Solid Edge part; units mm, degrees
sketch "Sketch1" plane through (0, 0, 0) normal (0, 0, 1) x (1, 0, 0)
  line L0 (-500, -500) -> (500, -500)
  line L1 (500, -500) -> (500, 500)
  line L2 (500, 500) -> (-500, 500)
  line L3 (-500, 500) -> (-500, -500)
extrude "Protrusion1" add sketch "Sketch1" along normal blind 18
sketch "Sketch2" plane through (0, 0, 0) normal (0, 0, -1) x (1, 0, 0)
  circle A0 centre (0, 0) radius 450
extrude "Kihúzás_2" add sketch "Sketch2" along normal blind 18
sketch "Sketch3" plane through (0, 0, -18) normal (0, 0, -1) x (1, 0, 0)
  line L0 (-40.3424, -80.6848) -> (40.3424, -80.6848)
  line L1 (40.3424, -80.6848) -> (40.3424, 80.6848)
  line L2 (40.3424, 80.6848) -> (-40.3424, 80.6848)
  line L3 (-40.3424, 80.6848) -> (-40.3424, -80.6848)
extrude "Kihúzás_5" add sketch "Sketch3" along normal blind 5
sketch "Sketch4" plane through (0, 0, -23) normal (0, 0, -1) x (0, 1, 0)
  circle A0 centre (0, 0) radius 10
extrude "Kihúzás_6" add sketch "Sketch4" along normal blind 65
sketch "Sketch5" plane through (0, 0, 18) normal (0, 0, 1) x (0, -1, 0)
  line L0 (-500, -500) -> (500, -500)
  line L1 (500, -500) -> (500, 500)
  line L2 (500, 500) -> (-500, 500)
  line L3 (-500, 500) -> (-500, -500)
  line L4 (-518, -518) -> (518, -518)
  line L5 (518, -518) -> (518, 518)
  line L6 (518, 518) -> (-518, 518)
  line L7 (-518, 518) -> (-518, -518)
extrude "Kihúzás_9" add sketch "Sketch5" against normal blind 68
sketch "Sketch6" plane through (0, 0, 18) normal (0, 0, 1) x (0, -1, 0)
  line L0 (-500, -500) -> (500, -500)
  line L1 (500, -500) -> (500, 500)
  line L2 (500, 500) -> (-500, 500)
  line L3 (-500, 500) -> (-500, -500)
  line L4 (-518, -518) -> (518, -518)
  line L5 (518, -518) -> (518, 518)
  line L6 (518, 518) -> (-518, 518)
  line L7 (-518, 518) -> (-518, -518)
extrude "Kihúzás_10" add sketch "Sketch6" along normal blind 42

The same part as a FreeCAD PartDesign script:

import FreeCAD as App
import Part
import Sketcher


def add_polygon(sketch, points):
    """Adds a closed chain of lines whose ends are joined by coincident constraints."""
    first, n = sketch.GeometryCount, len(points)
    for a, b in zip(points, points[1:] + points[:1]):
        sketch.addGeometry(Part.LineSegment(App.Vector(*a, 0), App.Vector(*b, 0)), False)
    for i in range(n):
        sketch.addConstraint(Sketcher.Constraint("Coincident", first + i, 2, first + (i + 1) % n, 1))

doc = App.newDocument("Part")
params = doc.addObject("Spreadsheet::Sheet", "Params")
for row, (alias, value) in enumerate([
    ("sketch1_width", "1000 mm"),
    ("pad1_length", "18 mm"),
    ("sketch2_diameter", "900 mm"),
    ("pad2_length", "18 mm"),
    ("pad3_length", "5 mm"),
    ("sketch4_diameter", "20 mm"),
    ("pad4_length", "65 mm"),
    ("sketch5_width", "1036 mm"),
    ("sketch5_width2", "1000 mm"),
    ("pad5_length", "68 mm"),
    ("sketch6_width", "1036 mm"),
    ("sketch6_width2", "1000 mm"),
    ("pad6_length", "42 mm"),
], start=1):
    params.set(f"A{row}", alias)
    params.set(f"B{row}", "=" + value)
    params.setAlias(f"B{row}", alias)

body = doc.addObject("PartDesign::Body", "Body")

sketch1 = doc.addObject("Sketcher::SketchObject", "Sketch")
body.addObject(sketch1)
sketch1.AttachmentSupport = (doc.XY_Plane, [""])
sketch1.MapMode = "FlatFace"
add_polygon(sketch1, [(-500, 500), (-500, -500), (500, -500), (500, 500)])
sketch1.addConstraint(Sketcher.Constraint("Vertical", 0))
sketch1.addConstraint(Sketcher.Constraint("Horizontal", 1))
sketch1.addConstraint(Sketcher.Constraint("Vertical", 2))
sketch1.addConstraint(Sketcher.Constraint("Horizontal", 3))
sketch1.addConstraint(Sketcher.Constraint("Symmetric", 0, 2, 2, 2, -1, 1))
sketch1.addConstraint(Sketcher.Constraint("Equal", 3, 0))
sketch1.addConstraint(Sketcher.Constraint("DistanceX", 1, 1, 1, 2, 1000.0))
sketch1.setExpression("Constraints[10]", "Params.sketch1_width")
pad1 = doc.addObject("PartDesign::Pad", "Pad")
body.addObject(pad1)
pad1.Profile = sketch1
pad1.setExpression("Length", "Params.pad1_length")

sketch2 = doc.addObject("Sketcher::SketchObject", "Sketch001")
body.addObject(sketch2)
sketch2.AttachmentSupport = (doc.XY_Plane, [""])
sketch2.MapMode = "FlatFace"
sketch2.addGeometry(Part.Circle(App.Vector(0, 0, 0), App.Vector(0, 0, 1), 450), False)
sketch2.addConstraint(Sketcher.Constraint("Coincident", 0, 3, -1, 1))
sketch2.addConstraint(Sketcher.Constraint("Diameter", 0, 900.0))
sketch2.setExpression("Constraints[1]", "Params.sketch2_diameter")
pad2 = doc.addObject("PartDesign::Pad", "Pad001")
body.addObject(pad2)
pad2.Profile = sketch2
pad2.setExpression("Length", "Params.pad2_length")
pad2.Reversed = True

sketch3 = doc.addObject("Sketcher::SketchObject", "Sketch002")
body.addObject(sketch3)
sketch3.AttachmentSupport = (doc.XY_Plane, [""])
sketch3.MapMode = "FlatFace"
sketch3.AttachmentOffset = App.Placement(App.Vector(0, 0, -18), App.Rotation())
add_polygon(sketch3, [(-40, -81), (-40, 81), (40, 81), (40, -81)])
sketch3.addConstraint(Sketcher.Constraint("Vertical", 0))
sketch3.addConstraint(Sketcher.Constraint("Horizontal", 1))
sketch3.addConstraint(Sketcher.Constraint("Vertical", 2))
sketch3.addConstraint(Sketcher.Constraint("Horizontal", 3))
sketch3.addConstraint(Sketcher.Constraint("Symmetric", 0, 2, 2, 2, -1, 1))
sketch3.addConstraint(Sketcher.Constraint("DistanceX", 1, 1, 1, 2, 80.6848))
sketch3.addConstraint(Sketcher.Constraint("DistanceY", 0, 1, 0, 2, 161.3696))
pad3 = doc.addObject("PartDesign::Pad", "Pad002")
body.addObject(pad3)
pad3.Profile = sketch3
pad3.setExpression("Length", "Params.pad3_length")
pad3.Reversed = True

sketch4 = doc.addObject("Sketcher::SketchObject", "Sketch003")
body.addObject(sketch4)
sketch4.AttachmentSupport = (doc.XY_Plane, [""])
sketch4.MapMode = "FlatFace"
sketch4.AttachmentOffset = App.Placement(App.Vector(0, 0, -23), App.Rotation())
sketch4.addGeometry(Part.Circle(App.Vector(0, 0, 0), App.Vector(0, 0, 1), 10), False)
sketch4.addConstraint(Sketcher.Constraint("Coincident", 0, 3, -1, 1))
sketch4.addConstraint(Sketcher.Constraint("Diameter", 0, 20.0))
sketch4.setExpression("Constraints[1]", "Params.sketch4_diameter")
pad4 = doc.addObject("PartDesign::Pad", "Pad003")
body.addObject(pad4)
pad4.Profile = sketch4
pad4.setExpression("Length", "Params.pad4_length")
pad4.Reversed = True

sketch5 = doc.addObject("Sketcher::SketchObject", "Sketch004")
body.addObject(sketch5)
sketch5.AttachmentSupport = (doc.XY_Plane, [""])
sketch5.MapMode = "FlatFace"
sketch5.AttachmentOffset = App.Placement(App.Vector(0, 0, 18), App.Rotation())
add_polygon(sketch5, [(518, 518), (-518, 518), (-518, -518), (518, -518)])
add_polygon(sketch5, [(-500, -500), (-500, 500), (500, 500), (500, -500)])
sketch5.addConstraint(Sketcher.Constraint("Horizontal", 0))
sketch5.addConstraint(Sketcher.Constraint("Vertical", 1))
sketch5.addConstraint(Sketcher.Constraint("Horizontal", 2))
sketch5.addConstraint(Sketcher.Constraint("Vertical", 3))
sketch5.addConstraint(Sketcher.Constraint("Vertical", 4))
sketch5.addConstraint(Sketcher.Constraint("Horizontal", 5))
sketch5.addConstraint(Sketcher.Constraint("Vertical", 6))
sketch5.addConstraint(Sketcher.Constraint("Horizontal", 7))
sketch5.addConstraint(Sketcher.Constraint("Symmetric", 0, 2, 2, 2, -1, 1))
sketch5.addConstraint(Sketcher.Constraint("Symmetric", 4, 2, 6, 2, -1, 1))
sketch5.addConstraint(Sketcher.Constraint("Equal", 2, 1))
sketch5.addConstraint(Sketcher.Constraint("Equal", 7, 4))
sketch5.addConstraint(Sketcher.Constraint("DistanceX", 0, 2, 0, 1, 1036.0))
sketch5.addConstraint(Sketcher.Constraint("DistanceX", 5, 1, 5, 2, 1000.0))
sketch5.setExpression("Constraints[20]", "Params.sketch5_width")
sketch5.setExpression("Constraints[21]", "Params.sketch5_width2")
pad5 = doc.addObject("PartDesign::Pad", "Pad004")
body.addObject(pad5)
pad5.Profile = sketch5
pad5.setExpression("Length", "Params.pad5_length")
pad5.Reversed = True

sketch6 = doc.addObject("Sketcher::SketchObject", "Sketch005")
body.addObject(sketch6)
sketch6.AttachmentSupport = (doc.XY_Plane, [""])
sketch6.MapMode = "FlatFace"
sketch6.AttachmentOffset = App.Placement(App.Vector(0, 0, 18), App.Rotation())
add_polygon(sketch6, [(518, 518), (-518, 518), (-518, -518), (518, -518)])
add_polygon(sketch6, [(-500, -500), (-500, 500), (500, 500), (500, -500)])
sketch6.addConstraint(Sketcher.Constraint("Horizontal", 0))
sketch6.addConstraint(Sketcher.Constraint("Vertical", 1))
sketch6.addConstraint(Sketcher.Constraint("Horizontal", 2))
sketch6.addConstraint(Sketcher.Constraint("Vertical", 3))
sketch6.addConstraint(Sketcher.Constraint("Vertical", 4))
sketch6.addConstraint(Sketcher.Constraint("Horizontal", 5))
sketch6.addConstraint(Sketcher.Constraint("Vertical", 6))
sketch6.addConstraint(Sketcher.Constraint("Horizontal", 7))
sketch6.addConstraint(Sketcher.Constraint("Symmetric", 0, 2, 2, 2, -1, 1))
sketch6.addConstraint(Sketcher.Constraint("Symmetric", 4, 2, 6, 2, -1, 1))
sketch6.addConstraint(Sketcher.Constraint("Equal", 2, 1))
sketch6.addConstraint(Sketcher.Constraint("Equal", 7, 4))
sketch6.addConstraint(Sketcher.Constraint("DistanceX", 0, 2, 0, 1, 1036.0))
sketch6.addConstraint(Sketcher.Constraint("DistanceX", 5, 1, 5, 2, 1000.0))
sketch6.setExpression("Constraints[20]", "Params.sketch6_width")
sketch6.setExpression("Constraints[21]", "Params.sketch6_width2")
pad6 = doc.addObject("PartDesign::Pad", "Pad005")
body.addObject(pad6)
pad6.Profile = sketch6
pad6.setExpression("Length", "Params.pad6_length")

doc.recompute()
